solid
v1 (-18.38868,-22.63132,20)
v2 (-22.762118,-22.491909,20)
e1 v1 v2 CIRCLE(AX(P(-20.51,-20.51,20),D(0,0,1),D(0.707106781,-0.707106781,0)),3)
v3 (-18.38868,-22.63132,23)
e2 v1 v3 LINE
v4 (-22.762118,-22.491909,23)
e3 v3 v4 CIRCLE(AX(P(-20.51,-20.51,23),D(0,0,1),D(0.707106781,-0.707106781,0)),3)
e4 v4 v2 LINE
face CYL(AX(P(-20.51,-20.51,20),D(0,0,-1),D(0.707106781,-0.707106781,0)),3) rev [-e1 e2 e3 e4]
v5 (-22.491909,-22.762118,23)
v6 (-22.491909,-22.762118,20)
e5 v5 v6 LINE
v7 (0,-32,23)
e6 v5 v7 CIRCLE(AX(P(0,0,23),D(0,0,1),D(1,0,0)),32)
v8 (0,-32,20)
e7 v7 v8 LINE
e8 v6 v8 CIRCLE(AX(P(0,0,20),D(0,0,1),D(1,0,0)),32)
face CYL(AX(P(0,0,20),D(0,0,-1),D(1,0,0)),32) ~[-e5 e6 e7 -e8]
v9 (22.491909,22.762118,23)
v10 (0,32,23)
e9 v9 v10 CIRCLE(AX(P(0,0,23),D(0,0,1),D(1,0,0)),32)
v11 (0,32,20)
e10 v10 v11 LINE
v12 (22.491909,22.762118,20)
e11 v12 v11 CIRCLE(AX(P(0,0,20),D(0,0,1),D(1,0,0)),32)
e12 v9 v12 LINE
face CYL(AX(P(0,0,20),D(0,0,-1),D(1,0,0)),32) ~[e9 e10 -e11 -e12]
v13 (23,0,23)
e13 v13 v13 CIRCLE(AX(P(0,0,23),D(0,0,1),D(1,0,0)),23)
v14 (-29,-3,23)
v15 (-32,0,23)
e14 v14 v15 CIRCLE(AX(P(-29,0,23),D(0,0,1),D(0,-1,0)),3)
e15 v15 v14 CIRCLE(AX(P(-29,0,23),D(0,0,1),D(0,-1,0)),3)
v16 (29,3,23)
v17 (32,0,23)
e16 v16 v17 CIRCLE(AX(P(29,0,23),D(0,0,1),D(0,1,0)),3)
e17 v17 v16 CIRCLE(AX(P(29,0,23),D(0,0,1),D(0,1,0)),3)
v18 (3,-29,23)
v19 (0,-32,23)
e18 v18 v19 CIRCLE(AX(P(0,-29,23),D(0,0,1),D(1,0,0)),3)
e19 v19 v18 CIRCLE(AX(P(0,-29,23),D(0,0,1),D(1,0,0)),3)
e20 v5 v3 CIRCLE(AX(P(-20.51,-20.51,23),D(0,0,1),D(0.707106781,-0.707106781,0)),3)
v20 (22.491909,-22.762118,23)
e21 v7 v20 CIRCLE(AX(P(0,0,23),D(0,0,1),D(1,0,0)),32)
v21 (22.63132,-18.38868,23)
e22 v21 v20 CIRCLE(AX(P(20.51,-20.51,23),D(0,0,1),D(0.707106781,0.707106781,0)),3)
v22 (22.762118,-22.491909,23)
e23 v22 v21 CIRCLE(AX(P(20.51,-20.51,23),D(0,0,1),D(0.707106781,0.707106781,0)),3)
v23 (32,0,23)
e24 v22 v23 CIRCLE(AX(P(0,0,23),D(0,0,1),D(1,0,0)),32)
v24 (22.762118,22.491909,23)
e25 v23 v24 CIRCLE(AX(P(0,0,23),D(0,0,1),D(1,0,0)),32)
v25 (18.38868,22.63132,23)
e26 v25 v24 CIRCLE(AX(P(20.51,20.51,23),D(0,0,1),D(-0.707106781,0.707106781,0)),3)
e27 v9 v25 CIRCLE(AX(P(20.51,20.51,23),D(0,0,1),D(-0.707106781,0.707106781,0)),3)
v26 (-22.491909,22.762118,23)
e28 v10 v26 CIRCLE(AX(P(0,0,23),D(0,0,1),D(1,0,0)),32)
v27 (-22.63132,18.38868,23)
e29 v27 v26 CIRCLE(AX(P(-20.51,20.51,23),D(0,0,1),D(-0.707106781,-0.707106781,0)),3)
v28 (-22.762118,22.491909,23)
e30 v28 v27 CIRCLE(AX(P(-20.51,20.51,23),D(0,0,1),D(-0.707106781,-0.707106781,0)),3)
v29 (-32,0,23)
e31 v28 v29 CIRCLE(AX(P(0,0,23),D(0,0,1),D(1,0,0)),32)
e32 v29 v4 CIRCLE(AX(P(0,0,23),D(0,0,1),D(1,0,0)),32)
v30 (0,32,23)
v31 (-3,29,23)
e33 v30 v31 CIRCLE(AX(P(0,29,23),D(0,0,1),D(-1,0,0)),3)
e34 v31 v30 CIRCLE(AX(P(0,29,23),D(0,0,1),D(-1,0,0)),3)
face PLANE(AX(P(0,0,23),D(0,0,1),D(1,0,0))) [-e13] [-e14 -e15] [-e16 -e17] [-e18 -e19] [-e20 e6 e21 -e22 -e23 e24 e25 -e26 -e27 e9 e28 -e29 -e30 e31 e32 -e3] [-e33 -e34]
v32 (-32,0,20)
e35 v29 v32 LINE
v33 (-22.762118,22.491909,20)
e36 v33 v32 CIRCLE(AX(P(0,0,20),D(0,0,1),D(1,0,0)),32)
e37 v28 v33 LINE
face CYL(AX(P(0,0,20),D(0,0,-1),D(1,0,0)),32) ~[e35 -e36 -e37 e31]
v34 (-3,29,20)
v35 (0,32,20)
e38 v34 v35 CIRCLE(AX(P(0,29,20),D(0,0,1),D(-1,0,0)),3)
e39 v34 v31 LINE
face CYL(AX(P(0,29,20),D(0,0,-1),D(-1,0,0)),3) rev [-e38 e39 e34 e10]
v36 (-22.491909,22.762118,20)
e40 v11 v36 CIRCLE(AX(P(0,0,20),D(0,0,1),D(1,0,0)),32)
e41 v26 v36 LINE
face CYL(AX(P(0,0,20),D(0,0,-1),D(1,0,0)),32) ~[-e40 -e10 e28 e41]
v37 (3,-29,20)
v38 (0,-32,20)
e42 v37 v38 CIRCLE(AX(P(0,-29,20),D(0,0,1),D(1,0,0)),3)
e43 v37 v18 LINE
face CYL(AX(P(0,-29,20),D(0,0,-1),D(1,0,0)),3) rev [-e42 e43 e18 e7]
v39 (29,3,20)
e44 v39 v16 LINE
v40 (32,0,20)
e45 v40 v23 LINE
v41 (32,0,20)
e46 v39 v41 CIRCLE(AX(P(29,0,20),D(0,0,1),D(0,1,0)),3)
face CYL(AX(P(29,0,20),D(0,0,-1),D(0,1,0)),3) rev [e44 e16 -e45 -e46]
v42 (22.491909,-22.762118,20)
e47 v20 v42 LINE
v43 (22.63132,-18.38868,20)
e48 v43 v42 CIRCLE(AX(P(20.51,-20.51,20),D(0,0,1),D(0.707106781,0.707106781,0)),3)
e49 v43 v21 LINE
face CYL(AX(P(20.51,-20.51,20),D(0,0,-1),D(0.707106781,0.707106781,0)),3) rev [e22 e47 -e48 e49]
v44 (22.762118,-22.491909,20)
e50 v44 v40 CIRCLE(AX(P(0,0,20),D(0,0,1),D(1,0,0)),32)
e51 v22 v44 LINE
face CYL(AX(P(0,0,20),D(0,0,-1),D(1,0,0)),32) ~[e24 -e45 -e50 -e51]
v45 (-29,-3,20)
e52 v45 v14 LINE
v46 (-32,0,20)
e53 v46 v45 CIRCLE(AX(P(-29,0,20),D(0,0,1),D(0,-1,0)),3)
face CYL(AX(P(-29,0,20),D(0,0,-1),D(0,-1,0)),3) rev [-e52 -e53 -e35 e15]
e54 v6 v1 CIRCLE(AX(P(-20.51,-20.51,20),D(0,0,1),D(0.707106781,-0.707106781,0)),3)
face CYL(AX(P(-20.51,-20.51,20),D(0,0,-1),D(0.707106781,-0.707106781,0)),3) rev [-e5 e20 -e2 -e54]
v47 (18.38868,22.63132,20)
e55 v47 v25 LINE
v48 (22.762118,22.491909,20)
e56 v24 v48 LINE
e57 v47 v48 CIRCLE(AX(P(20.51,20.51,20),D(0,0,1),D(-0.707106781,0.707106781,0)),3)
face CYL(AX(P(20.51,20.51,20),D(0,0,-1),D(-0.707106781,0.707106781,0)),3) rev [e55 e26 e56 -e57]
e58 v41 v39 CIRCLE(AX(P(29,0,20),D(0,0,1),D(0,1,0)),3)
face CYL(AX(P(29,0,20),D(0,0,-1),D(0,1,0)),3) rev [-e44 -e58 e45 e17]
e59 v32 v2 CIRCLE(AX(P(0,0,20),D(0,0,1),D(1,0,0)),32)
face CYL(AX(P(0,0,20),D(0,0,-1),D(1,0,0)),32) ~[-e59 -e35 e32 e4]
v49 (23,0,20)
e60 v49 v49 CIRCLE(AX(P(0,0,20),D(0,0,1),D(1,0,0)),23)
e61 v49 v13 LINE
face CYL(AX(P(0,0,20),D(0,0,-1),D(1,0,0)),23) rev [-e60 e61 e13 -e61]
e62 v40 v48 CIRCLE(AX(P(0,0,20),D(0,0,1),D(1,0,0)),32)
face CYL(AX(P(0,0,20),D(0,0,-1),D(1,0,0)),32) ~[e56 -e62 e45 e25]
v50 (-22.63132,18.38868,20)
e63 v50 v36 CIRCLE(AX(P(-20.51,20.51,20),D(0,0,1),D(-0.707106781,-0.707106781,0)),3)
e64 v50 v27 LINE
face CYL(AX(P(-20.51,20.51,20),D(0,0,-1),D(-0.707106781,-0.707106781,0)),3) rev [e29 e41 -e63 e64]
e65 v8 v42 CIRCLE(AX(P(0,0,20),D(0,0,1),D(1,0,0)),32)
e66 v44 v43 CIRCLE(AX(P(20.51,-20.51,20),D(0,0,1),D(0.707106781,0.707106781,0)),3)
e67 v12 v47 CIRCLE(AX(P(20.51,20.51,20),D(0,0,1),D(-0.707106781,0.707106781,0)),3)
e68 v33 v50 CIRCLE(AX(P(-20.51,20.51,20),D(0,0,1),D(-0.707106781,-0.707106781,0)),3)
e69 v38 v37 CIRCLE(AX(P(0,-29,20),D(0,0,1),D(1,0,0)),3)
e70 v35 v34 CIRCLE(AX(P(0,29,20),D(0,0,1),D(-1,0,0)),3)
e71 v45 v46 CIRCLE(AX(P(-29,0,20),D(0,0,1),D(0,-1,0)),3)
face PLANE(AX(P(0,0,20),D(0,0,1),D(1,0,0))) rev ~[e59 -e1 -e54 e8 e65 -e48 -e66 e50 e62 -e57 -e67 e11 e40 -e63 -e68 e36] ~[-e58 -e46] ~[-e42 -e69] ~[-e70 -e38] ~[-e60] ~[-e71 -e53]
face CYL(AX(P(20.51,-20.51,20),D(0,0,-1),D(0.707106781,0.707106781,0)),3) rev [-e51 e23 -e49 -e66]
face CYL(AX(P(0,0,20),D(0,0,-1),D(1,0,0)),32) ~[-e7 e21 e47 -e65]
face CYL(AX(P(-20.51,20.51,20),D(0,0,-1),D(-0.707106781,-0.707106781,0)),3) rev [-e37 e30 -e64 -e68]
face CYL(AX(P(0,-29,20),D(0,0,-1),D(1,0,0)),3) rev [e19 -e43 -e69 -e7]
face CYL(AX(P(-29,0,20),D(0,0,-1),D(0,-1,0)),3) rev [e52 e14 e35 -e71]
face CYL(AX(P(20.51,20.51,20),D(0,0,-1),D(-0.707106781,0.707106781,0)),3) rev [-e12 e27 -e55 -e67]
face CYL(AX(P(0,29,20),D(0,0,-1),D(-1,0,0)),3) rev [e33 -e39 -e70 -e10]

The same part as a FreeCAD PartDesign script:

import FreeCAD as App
import Part
import Sketcher
Q = App.Units.Quantity

doc = App.newDocument("Part")
body = doc.addObject("PartDesign::Body", "Body")

# Sketch on XY plane
sketch1 = body.newObject("Sketcher::SketchObject", "Sketch")
sketch1.AttachmentSupport = (doc.getObject("XY_Plane"), [""])
sketch1.MapMode = "FlatFace"
sketch1.addGeometry(Part.Circle(App.Vector(0, 0, 0), App.Vector(0, 0, 1), 3), False)
sketch1.addConstraint([
    Sketcher.Constraint("Coincident", 0, 3, -1, 1),
    Sketcher.Constraint("Diameter", 0, Q("6 mm")),
])
pad1 = body.newObject("PartDesign::Pad", "Pad")
pad1.Profile = sketch1
pad1.Length = 3
body2 = doc.addObject("PartDesign::Body", "Body001")
doc.recompute()

body.Placement = App.Placement(App.Vector(20.51, -20.51, 20), App.Rotation(App.Vector(0, 0, 1), 45))
boolean = body2.newObject("PartDesign::Boolean", "Boolean")
boolean.Type = "Fuse"
boolean.addObjects([body])
body3 = doc.addObject("PartDesign::Body", "Body002")

# Sketch on XY plane
sketch2 = body3.newObject("Sketcher::SketchObject", "Sketch001")
sketch2.AttachmentSupport = (doc.getObject("XY_Plane002"), [""])
sketch2.MapMode = "FlatFace"
sketch2.AttachmentOffset = App.Placement(App.Vector(0, 0, 20), App.Rotation())
sketch2.addGeometry(Part.Circle(App.Vector(29, 0, 0), App.Vector(0, 0, 1), 3), False)
sketch2.addConstraint([
    Sketcher.Constraint("PointOnObject", 0, 3, -1),
    Sketcher.Constraint("Diameter", 0, Q("6 mm")),
    Sketcher.Constraint("DistanceX", -1, 1, 0, 3, Q("29 mm")),
])
pad2 = body3.newObject("PartDesign::Pad", "Pad001")
pad2.Profile = sketch2
pad2.Length = 3
body4 = doc.addObject("PartDesign::Body", "Body003")

# Sketch on XY plane
sketch3 = body4.newObject("Sketcher::SketchObject", "Sketch002")
sketch3.AttachmentSupport = (doc.getObject("XY_Plane003"), [""])
sketch3.MapMode = "FlatFace"
sketch3.addGeometry(Part.Circle(App.Vector(0, 0, 0), App.Vector(0, 0, 1), 3), False)
sketch3.addConstraint([
    Sketcher.Constraint("Coincident", 0, 3, -1, 1),
    Sketcher.Constraint("Diameter", 0, Q("6 mm")),
])
pad3 = body4.newObject("PartDesign::Pad", "Pad002")
pad3.Profile = sketch3
pad3.Length = 3
body5 = doc.addObject("PartDesign::Body", "Body004")
doc.recompute()

body4.Placement = App.Placement(App.Vector(20.51, 20.51, 20), App.Rotation(App.Vector(0, 0, 1), 135))
boolean2 = body5.newObject("PartDesign::Boolean", "Boolean001")
boolean2.Type = "Fuse"
boolean2.addObjects([body4])
body6 = doc.addObject("PartDesign::Body", "Body005")

# Sketch on XY plane
sketch4 = body6.newObject("Sketcher::SketchObject", "Sketch003")
sketch4.AttachmentSupport = (doc.getObject("XY_Plane005"), [""])
sketch4.MapMode = "FlatFace"
sketch4.AttachmentOffset = App.Placement(App.Vector(0, 0, 20), App.Rotation())
sketch4.addGeometry(Part.Circle(App.Vector(0, 29, 0), App.Vector(0, 0, 1), 3), False)
sketch4.addConstraint([
    Sketcher.Constraint("PointOnObject", 0, 3, -2),
    Sketcher.Constraint("Diameter", 0, Q("6 mm")),
    Sketcher.Constraint("DistanceY", -1, 1, 0, 3, Q("29 mm")),
])
pad4 = body6.newObject("PartDesign::Pad", "Pad003")
pad4.Profile = sketch4
pad4.Length = 3
body7 = doc.addObject("PartDesign::Body", "Body006")

# Sketch on XY plane
sketch5 = body7.newObject("Sketcher::SketchObject", "Sketch004")
sketch5.AttachmentSupport = (doc.getObject("XY_Plane006"), [""])
sketch5.MapMode = "FlatFace"
sketch5.addGeometry(Part.Circle(App.Vector(0, 0, 0), App.Vector(0, 0, 1), 3), False)
sketch5.addConstraint([
    Sketcher.Constraint("Coincident", 0, 3, -1, 1),
    Sketcher.Constraint("Diameter", 0, Q("6 mm")),
])
pad5 = body7.newObject("PartDesign::Pad", "Pad004")
pad5.Profile = sketch5
pad5.Length = 3
body8 = doc.addObject("PartDesign::Body", "Body007")
doc.recompute()

body7.Placement = App.Placement(App.Vector(-20.51, 20.51, 20), App.Rotation(App.Vector(0, 0, 1), 225))
boolean3 = body8.newObject("PartDesign::Boolean", "Boolean002")
boolean3.Type = "Fuse"
boolean3.addObjects([body7])
body9 = doc.addObject("PartDesign::Body", "Body008")

# Sketch on XY plane
sketch6 = body9.newObject("Sketcher::SketchObject", "Sketch005")
sketch6.AttachmentSupport = (doc.getObject("XY_Plane008"), [""])
sketch6.MapMode = "FlatFace"
sketch6.AttachmentOffset = App.Placement(App.Vector(0, 0, 20), App.Rotation())
sketch6.addGeometry(Part.Circle(App.Vector(-29, 0, 0), App.Vector(0, 0, 1), 3), False)
sketch6.addConstraint([
    Sketcher.Constraint("PointOnObject", 0, 3, -1),
    Sketcher.Constraint("Diameter", 0, Q("6 mm")),
    Sketcher.Constraint("DistanceX", 0, 3, -1, 1, Q("29 mm")),
])
pad6 = body9.newObject("PartDesign::Pad", "Pad005")
pad6.Profile = sketch6
pad6.Length = 3
body10 = doc.addObject("PartDesign::Body", "Body009")

# Sketch on XY plane
sketch7 = body10.newObject("Sketcher::SketchObject", "Sketch006")
sketch7.AttachmentSupport = (doc.getObject("XY_Plane009"), [""])
sketch7.MapMode = "FlatFace"
sketch7.addGeometry(Part.Circle(App.Vector(0, 0, 0), App.Vector(0, 0, 1), 3), False)
sketch7.addConstraint([
    Sketcher.Constraint("Coincident", 0, 3, -1, 1),
    Sketcher.Constraint("Diameter", 0, Q("6 mm")),
])
pad7 = body10.newObject("PartDesign::Pad", "Pad006")
pad7.Profile = sketch7
pad7.Length = 3
body11 = doc.addObject("PartDesign::Body", "Body010")
doc.recompute()

body10.Placement = App.Placement(App.Vector(-20.51, -20.51, 20), App.Rotation(App.Vector(0, 0, -1), 45))
boolean4 = body11.newObject("PartDesign::Boolean", "Boolean003")
boolean4.Type = "Fuse"
boolean4.addObjects([body10])
body12 = doc.addObject("PartDesign::Body", "Body011")
body12.AllowCompound = True

# Sketch on XY plane
sketch8 = body12.newObject("Sketcher::SketchObject", "Sketch007")
sketch8.AttachmentSupport = (doc.getObject("XY_Plane011"), [""])
sketch8.MapMode = "FlatFace"
sketch8.AttachmentOffset = App.Placement(App.Vector(0, 0, 20), App.Rotation())
sketch8.addGeometry(Part.Circle(App.Vector(0, -29, 0), App.Vector(0, 0, 1), 3), False)
sketch8.addConstraint([
    Sketcher.Constraint("PointOnObject", 0, 3, -2),
    Sketcher.Constraint("Diameter", 0, Q("6 mm")),
    Sketcher.Constraint("DistanceY", 0, 3, -1, 1, Q("29 mm")),
])
pad8 = body12.newObject("PartDesign::Pad", "Pad007")
pad8.Profile = sketch8
pad8.Length = 3
doc.recompute()

boolean5 = body12.newObject("PartDesign::Boolean", "Boolean004")
boolean5.Type = "Fuse"
boolean5.addObjects([body2])
doc.recompute()

boolean6 = body12.newObject("PartDesign::Boolean", "Boolean005")
boolean6.Type = "Fuse"
boolean6.addObjects([body3])
doc.recompute()

boolean7 = body12.newObject("PartDesign::Boolean", "Boolean006")
boolean7.Type = "Fuse"
boolean7.addObjects([body5])
doc.recompute()

boolean8 = body12.newObject("PartDesign::Boolean", "Boolean007")
boolean8.Type = "Fuse"
boolean8.addObjects([body6])
doc.recompute()

boolean9 = body12.newObject("PartDesign::Boolean", "Boolean008")
boolean9.Type = "Fuse"
boolean9.addObjects([body8])
doc.recompute()

boolean10 = body12.newObject("PartDesign::Boolean", "Boolean009")
boolean10.Type = "Fuse"
boolean10.addObjects([body9])
doc.recompute()

boolean11 = body12.newObject("PartDesign::Boolean", "Boolean010")
boolean11.Type = "Fuse"
boolean11.addObjects([body11])
body13 = doc.addObject("PartDesign::Body", "Body012")

# Sketch on XY plane
sketch9 = body13.newObject("Sketcher::SketchObject", "Sketch008")
sketch9.AttachmentSupport = (doc.getObject("XY_Plane012"), [""])
sketch9.MapMode = "FlatFace"
sketch9.AttachmentOffset = App.Placement(App.Vector(0, 0, 20), App.Rotation())
sketch9.addGeometry([
    Part.Circle(App.Vector(0, 0, 0), App.Vector(0, 0, 1), 32),
    Part.Circle(App.Vector(0, 0, 0), App.Vector(0, 0, 1), 23),
], False)
sketch9.addConstraint([
    Sketcher.Constraint("Coincident", 0, 3, -1, 1),
    Sketcher.Constraint("Coincident", 1, 3, -1, 1),
    Sketcher.Constraint("Diameter", 0, Q("64 mm")),
    Sketcher.Constraint("Diameter", 1, Q("46 mm")),
])
pad9 = body13.newObject("PartDesign::Pad", "Pad008")
pad9.Profile = sketch9
pad9.Length = 3
doc.recompute()

boolean12 = body13.newObject("PartDesign::Boolean", "Boolean011")
boolean12.Type = "Cut"
boolean12.addObjects([body12])

doc.recompute()
